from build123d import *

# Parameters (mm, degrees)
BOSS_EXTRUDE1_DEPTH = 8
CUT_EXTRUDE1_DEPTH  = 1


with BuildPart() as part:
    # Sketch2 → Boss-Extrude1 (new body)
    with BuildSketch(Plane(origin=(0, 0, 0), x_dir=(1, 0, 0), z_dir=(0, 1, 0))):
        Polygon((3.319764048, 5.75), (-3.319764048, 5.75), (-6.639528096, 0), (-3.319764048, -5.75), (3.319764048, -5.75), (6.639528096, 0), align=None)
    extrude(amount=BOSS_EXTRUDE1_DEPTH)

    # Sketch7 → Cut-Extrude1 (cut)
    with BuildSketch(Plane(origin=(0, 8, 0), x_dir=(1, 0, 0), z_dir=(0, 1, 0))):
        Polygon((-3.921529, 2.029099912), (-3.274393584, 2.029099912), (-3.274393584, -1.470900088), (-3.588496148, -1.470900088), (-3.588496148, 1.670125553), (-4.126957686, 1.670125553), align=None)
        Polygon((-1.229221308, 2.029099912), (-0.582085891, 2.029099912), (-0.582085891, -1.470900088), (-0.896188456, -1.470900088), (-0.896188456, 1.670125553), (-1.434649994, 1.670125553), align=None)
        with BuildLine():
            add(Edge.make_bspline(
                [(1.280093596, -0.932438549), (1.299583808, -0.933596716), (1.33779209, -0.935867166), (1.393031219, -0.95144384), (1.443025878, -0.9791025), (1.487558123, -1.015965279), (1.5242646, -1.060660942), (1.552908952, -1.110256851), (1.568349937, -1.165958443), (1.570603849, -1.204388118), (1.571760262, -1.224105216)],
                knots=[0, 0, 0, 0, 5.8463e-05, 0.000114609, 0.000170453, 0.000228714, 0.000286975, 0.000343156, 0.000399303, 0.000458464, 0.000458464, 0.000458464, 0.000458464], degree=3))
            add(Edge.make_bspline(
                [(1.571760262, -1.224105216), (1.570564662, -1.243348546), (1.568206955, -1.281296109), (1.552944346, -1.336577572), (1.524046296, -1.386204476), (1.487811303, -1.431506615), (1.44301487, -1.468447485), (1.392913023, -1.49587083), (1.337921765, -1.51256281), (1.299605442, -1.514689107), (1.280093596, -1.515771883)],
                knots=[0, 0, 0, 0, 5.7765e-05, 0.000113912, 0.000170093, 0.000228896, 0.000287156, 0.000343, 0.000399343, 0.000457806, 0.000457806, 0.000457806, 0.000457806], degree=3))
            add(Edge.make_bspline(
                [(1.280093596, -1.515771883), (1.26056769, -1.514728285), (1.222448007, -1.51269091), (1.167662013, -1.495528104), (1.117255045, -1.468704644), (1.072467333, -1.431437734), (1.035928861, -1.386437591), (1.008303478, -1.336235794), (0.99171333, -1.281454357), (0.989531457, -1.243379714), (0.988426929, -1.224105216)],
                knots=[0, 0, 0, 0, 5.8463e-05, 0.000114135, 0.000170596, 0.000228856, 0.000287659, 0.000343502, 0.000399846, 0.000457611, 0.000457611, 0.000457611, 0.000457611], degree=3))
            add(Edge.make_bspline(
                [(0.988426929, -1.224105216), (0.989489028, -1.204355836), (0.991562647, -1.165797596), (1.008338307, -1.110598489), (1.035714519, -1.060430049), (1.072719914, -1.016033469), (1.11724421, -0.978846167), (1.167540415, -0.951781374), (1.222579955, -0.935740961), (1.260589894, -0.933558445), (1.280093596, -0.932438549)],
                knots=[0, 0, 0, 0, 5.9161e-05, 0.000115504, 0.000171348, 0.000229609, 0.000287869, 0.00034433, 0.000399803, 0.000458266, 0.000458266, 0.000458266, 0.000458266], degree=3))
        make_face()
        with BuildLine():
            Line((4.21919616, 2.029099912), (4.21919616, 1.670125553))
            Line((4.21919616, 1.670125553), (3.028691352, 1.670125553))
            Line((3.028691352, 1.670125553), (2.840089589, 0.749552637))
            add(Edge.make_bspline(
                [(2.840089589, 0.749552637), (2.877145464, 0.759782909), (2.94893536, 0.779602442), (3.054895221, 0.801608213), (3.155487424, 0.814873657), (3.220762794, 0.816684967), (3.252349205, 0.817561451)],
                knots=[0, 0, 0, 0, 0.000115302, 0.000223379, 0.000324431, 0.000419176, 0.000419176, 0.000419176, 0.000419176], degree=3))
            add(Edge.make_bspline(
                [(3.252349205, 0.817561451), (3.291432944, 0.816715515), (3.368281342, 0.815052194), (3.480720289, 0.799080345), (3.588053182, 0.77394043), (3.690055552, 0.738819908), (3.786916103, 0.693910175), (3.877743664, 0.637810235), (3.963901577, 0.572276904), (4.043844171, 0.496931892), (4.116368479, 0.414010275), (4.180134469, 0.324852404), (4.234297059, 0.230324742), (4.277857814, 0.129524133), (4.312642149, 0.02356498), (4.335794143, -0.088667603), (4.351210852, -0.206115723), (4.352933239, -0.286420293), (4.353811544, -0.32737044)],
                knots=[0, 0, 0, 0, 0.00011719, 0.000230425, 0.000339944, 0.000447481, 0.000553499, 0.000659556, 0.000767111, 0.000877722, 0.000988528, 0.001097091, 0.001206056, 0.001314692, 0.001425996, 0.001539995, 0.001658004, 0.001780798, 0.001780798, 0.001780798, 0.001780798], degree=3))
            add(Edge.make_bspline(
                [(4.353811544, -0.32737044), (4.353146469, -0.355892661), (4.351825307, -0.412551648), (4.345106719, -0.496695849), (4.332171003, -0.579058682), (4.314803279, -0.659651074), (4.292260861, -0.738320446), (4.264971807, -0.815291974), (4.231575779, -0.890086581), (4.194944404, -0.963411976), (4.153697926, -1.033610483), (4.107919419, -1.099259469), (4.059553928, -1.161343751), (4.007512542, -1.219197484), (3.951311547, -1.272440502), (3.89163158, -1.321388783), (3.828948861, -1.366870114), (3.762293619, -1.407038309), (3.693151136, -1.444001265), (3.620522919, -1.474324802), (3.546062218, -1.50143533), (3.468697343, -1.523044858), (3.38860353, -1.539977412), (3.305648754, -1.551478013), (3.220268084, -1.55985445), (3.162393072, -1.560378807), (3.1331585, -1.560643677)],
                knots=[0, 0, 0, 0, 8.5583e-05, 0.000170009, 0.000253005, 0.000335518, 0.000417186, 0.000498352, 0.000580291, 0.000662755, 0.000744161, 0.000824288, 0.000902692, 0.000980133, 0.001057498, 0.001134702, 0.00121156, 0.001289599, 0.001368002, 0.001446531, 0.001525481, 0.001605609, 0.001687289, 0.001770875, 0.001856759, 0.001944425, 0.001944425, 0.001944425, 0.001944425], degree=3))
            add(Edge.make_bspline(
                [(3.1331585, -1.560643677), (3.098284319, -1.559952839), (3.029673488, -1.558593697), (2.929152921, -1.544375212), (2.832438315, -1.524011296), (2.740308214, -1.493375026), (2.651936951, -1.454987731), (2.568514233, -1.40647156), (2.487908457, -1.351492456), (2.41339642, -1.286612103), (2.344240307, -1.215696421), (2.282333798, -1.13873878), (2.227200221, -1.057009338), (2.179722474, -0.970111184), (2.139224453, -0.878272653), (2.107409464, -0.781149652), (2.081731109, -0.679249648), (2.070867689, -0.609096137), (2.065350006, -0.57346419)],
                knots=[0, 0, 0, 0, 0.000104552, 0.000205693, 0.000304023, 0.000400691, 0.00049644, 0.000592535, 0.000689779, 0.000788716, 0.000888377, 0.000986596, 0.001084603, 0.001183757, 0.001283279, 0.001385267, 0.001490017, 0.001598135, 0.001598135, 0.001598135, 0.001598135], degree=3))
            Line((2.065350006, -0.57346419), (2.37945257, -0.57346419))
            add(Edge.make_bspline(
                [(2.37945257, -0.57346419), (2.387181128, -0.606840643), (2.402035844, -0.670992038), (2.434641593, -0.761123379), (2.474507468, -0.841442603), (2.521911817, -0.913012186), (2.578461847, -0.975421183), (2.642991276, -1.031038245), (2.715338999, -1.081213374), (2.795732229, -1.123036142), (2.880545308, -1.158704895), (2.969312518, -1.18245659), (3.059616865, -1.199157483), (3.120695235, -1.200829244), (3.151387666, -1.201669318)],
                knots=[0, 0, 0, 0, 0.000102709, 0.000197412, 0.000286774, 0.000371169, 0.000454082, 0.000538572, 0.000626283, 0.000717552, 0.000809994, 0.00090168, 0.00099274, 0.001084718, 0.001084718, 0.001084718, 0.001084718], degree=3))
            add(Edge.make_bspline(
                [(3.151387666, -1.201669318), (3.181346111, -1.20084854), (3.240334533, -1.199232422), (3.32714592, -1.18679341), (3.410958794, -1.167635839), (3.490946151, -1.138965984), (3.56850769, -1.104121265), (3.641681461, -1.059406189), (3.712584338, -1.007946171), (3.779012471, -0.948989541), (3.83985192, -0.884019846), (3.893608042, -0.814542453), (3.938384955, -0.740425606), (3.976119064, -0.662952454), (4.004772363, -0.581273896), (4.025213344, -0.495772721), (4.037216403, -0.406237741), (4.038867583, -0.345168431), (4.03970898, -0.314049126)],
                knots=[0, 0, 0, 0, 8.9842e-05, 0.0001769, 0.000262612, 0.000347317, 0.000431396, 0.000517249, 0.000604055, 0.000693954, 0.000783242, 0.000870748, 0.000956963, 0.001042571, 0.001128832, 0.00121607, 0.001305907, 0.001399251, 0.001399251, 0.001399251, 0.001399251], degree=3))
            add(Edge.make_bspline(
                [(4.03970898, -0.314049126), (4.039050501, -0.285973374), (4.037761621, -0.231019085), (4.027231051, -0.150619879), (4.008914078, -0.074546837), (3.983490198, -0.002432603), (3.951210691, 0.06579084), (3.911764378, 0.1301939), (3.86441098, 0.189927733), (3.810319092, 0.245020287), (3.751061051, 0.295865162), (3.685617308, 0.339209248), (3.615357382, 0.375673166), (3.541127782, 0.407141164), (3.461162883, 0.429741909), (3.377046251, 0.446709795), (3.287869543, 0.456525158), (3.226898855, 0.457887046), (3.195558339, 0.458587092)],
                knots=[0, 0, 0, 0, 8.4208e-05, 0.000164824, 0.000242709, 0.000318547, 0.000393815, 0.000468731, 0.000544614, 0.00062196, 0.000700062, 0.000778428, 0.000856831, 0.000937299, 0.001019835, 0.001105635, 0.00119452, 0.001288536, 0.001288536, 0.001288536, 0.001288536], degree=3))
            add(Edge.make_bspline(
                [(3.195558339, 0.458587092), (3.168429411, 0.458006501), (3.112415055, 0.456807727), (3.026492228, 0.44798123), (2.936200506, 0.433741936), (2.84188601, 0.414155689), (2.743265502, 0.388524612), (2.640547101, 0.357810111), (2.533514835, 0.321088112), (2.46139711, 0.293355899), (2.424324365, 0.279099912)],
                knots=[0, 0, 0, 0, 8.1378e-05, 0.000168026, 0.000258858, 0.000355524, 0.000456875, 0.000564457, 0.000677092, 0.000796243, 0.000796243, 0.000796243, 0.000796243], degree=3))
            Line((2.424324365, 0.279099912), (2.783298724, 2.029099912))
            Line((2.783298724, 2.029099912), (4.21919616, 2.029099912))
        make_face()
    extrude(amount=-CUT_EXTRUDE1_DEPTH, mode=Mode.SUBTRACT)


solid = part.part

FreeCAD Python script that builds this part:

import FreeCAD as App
import Part
import Sketcher

V = App.Vector
Q = App.Units.Quantity


def add_polygon(sketch, points):
    """Adds a closed chain of lines whose ends are joined by coincident constraints."""
    first, n = sketch.GeometryCount, len(points)
    for a, b in zip(points, points[1:] + points[:1]):
        sketch.addGeometry(Part.LineSegment(App.Vector(*a, 0), App.Vector(*b, 0)), False)
    for i in range(n):
        sketch.addConstraint(Sketcher.Constraint("Coincident", first + i, 2, first + (i + 1) % n, 1))

doc = App.newDocument("Part")
body = doc.addObject("PartDesign::Body", "Body")

# Sketch on XZ plane
sketch1 = body.newObject("Sketcher::SketchObject", "Sketch")
sketch1.AttachmentSupport = (doc.getObject("XZ_Plane"), [""])
sketch1.MapMode = "FlatFace"
add_polygon(sketch1, [(3, -6), (-3, -6), (-7, 0), (-3, 6), (3, 6), (7, 0)])  # lines 0-5
sketch1.addConstraint([
    Sketcher.Constraint("Horizontal", 0),
    Sketcher.Constraint("Horizontal", 3),
    Sketcher.Constraint("Symmetric", 0, 2, 3, 2, -1, 1),
    Sketcher.Constraint("Symmetric", 1, 2, 4, 2, -1, 1),
    Sketcher.Constraint("PointOnObject", 1, 2, -1),
    Sketcher.Constraint("Parallel", 2, 5),
    Sketcher.Constraint("Vertical", 0, 2, 2, 2),
    Sketcher.Constraint("Angle", 1, Q("120 deg")),
    Sketcher.Constraint("DistanceY", 0, 2, 2, 2, Q("11.5 mm")),
    Sketcher.Constraint("DistanceX", 0, 2, 0, 1, Q("6.639528 mm")),
])
pad1 = body.newObject("PartDesign::Pad", "Pad")
pad1.Profile = sketch1
pad1.Length = 8
pad1.Reversed = True

# Sketch on XZ plane
sketch2 = body.newObject("Sketcher::SketchObject", "Sketch001")
sketch2.AttachmentSupport = (doc.getObject("XZ_Plane"), [""])
sketch2.MapMode = "FlatFace"
sketch2.AttachmentOffset = App.Placement(V(0, 0, -8), App.Rotation())
add_polygon(sketch2, [(-3.274394, -2.0291), (-3.921529, -2.0291), (-4.126958, -1.670126), (-3.588496, -1.670126), (-3.588496, 1.4709), (-3.274394, 1.4709)])  # lines 0-5
add_polygon(sketch2, [(-0.582086, -2.0291), (-1.229221, -2.0291), (-1.43465, -1.670126), (-0.896188, -1.670126), (-0.896188, 1.4709), (-0.582086, 1.4709)])  # lines 6-11
sketch2.addGeometry(Part.BSplineCurve([V(1.280094, 0.932439, 0), V(1.299584, 0.933597, 0), V(1.337792, 0.935867, 0), V(1.393031, 0.951444, 0), V(1.443026, 0.979102, 0), V(1.487558, 1.015965, 0), V(1.524265, 1.060661, 0), V(1.552909, 1.110257, 0), V(1.56835, 1.165958, 0), V(1.570604, 1.204388, 0), V(1.57176, 1.224105, 0)], [4, 1, 1, 1, 1, 1, 1, 1, 4], [0, 0.000058463, 0.000114609, 0.000170453, 0.000228714, 0.000286975, 0.000343156, 0.000399303, 0.000458464], False, 3, [1, 1, 1, 1, 1, 1, 1, 1, 1, 1, 1], False), False)  # 12
sketch2.addGeometry(Part.BSplineCurve([V(0.988427, 1.224105, 0), V(0.989489, 1.204356, 0), V(0.991563, 1.165798, 0), V(1.008338, 1.110598, 0), V(1.035715, 1.06043, 0), V(1.07272, 1.016033, 0), V(1.117244, 0.978846, 0), V(1.16754, 0.951781, 0), V(1.22258, 0.935741, 0), V(1.26059, 0.933558, 0), V(1.280094, 0.932439, 0)], [4, 1, 1, 1, 1, 1, 1, 1, 4], [0, 0.000059161, 0.000115504, 0.000171348, 0.000229609, 0.000287869, 0.00034433, 0.000399803, 0.000458266], False, 3, [1, 1, 1, 1, 1, 1, 1, 1, 1, 1, 1], False), False)  # 13
sketch2.addGeometry(Part.BSplineCurve([V(1.280094, 1.515772, 0), V(1.260568, 1.514728, 0), V(1.222448, 1.512691, 0), V(1.167662, 1.495528, 0), V(1.117255, 1.468705, 0), V(1.072467, 1.431438, 0), V(1.035929, 1.386438, 0), V(1.008303, 1.336236, 0), V(0.991713, 1.281454, 0), V(0.989531, 1.24338, 0), V(0.988427, 1.224105, 0)], [4, 1, 1, 1, 1, 1, 1, 1, 4], [0, 0.000058463, 0.000114135, 0.000170596, 0.000228856, 0.000287659, 0.000343502, 0.000399846, 0.000457611], False, 3, [1, 1, 1, 1, 1, 1, 1, 1, 1, 1, 1], False), False)  # 14
sketch2.addGeometry(Part.BSplineCurve([V(1.57176, 1.224105, 0), V(1.570565, 1.243349, 0), V(1.568207, 1.281296, 0), V(1.552944, 1.336578, 0), V(1.524046, 1.386204, 0), V(1.487811, 1.431507, 0), V(1.443015, 1.468447, 0), V(1.392913, 1.495871, 0), V(1.337922, 1.512563, 0), V(1.299605, 1.514689, 0), V(1.280094, 1.515772, 0)], [4, 1, 1, 1, 1, 1, 1, 1, 4], [0, 0.000057765, 0.000113912, 0.000170093, 0.000228896, 0.000287156, 0.000343, 0.000399343, 0.000457806], False, 3, [1, 1, 1, 1, 1, 1, 1, 1, 1, 1, 1], False), False)  # 15
sketch2.addGeometry(Part.LineSegment(V(4.219196, -1.670126, 0), V(4.219196, -2.0291, 0)), False)  # 16
sketch2.addGeometry(Part.LineSegment(V(4.219196, -2.0291, 0), V(2.783299, -2.0291, 0)), False)  # 17
sketch2.addGeometry(Part.LineSegment(V(2.783299, -2.0291, 0), V(2.424324, -0.2791, 0)), False)  # 18
sketch2.addGeometry(Part.BSplineCurve([V(3.195558, -0.458587, 0), V(3.168429, -0.458007, 0), V(3.112415, -0.456808, 0), V(3.026492, -0.447981, 0), V(2.936201, -0.433742, 0), V(2.841886, -0.414156, 0), V(2.743266, -0.388525, 0), V(2.640547, -0.35781, 0), V(2.533515, -0.321088, 0), V(2.461397, -0.293356, 0), V(2.424324, -0.2791, 0)], [4, 1, 1, 1, 1, 1, 1, 1, 4], [0, 0.000081378, 0.000168026, 0.000258858, 0.000355524, 0.000456875, 0.000564457, 0.000677092, 0.000796243], False, 3, [1, 1, 1, 1, 1, 1, 1, 1, 1, 1, 1], False), False)  # 19
sketch2.addGeometry(Part.BSplineCurve([V(4.039709, 0.314049, 0), V(4.039051, 0.285973, 0), V(4.037762, 0.231019, 0), V(4.027231, 0.15062, 0), V(4.008914, 0.074547, 0), V(3.98349, 0.002433, 0), V(3.951211, -0.065791, 0), V(3.911764, -0.130194, 0), V(3.864411, -0.189928, 0), V(3.810319, -0.24502, 0), V(3.751061, -0.295865, 0), V(3.685617, -0.339209, 0), V(3.615357, -0.375673, 0), V(3.541128, -0.407141, 0), V(3.461163, -0.429742, 0), V(3.377046, -0.44671, 0), V(3.28787, -0.456525, 0), V(3.226899, -0.457887, 0), V(3.195558, -0.458587, 0)], [4, 1, 1, 1, 1, 1, 1, 1, 1, 1, 1, 1, 1, 1, 1, 1, 4], [0, 0.000084208, 0.000164824, 0.000242709, 0.000318547, 0.000393815, 0.000468731, 0.000544614, 0.00062196, 0.000700062, 0.000778428, 0.000856831, 0.000937299, 0.001019835, 0.001105635, 0.00119452, 0.001288536], False, 3, [1, 1, 1, 1, 1, 1, 1, 1, 1, 1, 1, 1, 1, 1, 1, 1, 1, 1, 1], False), False)  # 20
sketch2.addGeometry(Part.BSplineCurve([V(3.151388, 1.201669, 0), V(3.181346, 1.200849, 0), V(3.240335, 1.199232, 0), V(3.327146, 1.186793, 0), V(3.410959, 1.167636, 0), V(3.490946, 1.138966, 0), V(3.568508, 1.104121, 0), V(3.641681, 1.059406, 0), V(3.712584, 1.007946, 0), V(3.779012, 0.94899, 0), V(3.839852, 0.88402, 0), V(3.893608, 0.814542, 0), V(3.938385, 0.740426, 0), V(3.976119, 0.662952, 0), V(4.004772, 0.581274, 0), V(4.025213, 0.495773, 0), V(4.037216, 0.406238, 0), V(4.038868, 0.345168, 0), V(4.039709, 0.314049, 0)], [4, 1, 1, 1, 1, 1, 1, 1, 1, 1, 1, 1, 1, 1, 1, 1, 4], [0, 0.000089842, 0.0001769, 0.000262612, 0.000347317, 0.000431396, 0.000517249, 0.000604055, 0.000693954, 0.000783242, 0.000870748, 0.000956963, 0.001042571, 0.001128832, 0.00121607, 0.001305907, 0.001399251], False, 3, [1, 1, 1, 1, 1, 1, 1, 1, 1, 1, 1, 1, 1, 1, 1, 1, 1, 1, 1], False), False)  # 21
sketch2.addGeometry(Part.BSplineCurve([V(2.379453, 0.573464, 0), V(2.387181, 0.606841, 0), V(2.402036, 0.670992, 0), V(2.434642, 0.761123, 0), V(2.474507, 0.841443, 0), V(2.521912, 0.913012, 0), V(2.578462, 0.975421, 0), V(2.642991, 1.031038, 0), V(2.715339, 1.081213, 0), V(2.795732, 1.123036, 0), V(2.880545, 1.158705, 0), V(2.969313, 1.182457, 0), V(3.059617, 1.199157, 0), V(3.120695, 1.200829, 0), V(3.151388, 1.201669, 0)], [4, 1, 1, 1, 1, 1, 1, 1, 1, 1, 1, 1, 4], [0, 0.000102709, 0.000197412, 0.000286774, 0.000371169, 0.000454082, 0.000538572, 0.000626283, 0.000717552, 0.000809994, 0.00090168, 0.00099274, 0.001084718], False, 3, [1, 1, 1, 1, 1, 1, 1, 1, 1, 1, 1, 1, 1, 1, 1], False), False)  # 22
sketch2.addGeometry(Part.LineSegment(V(2.379453, 0.573464, 0), V(2.06535, 0.573464, 0)), False)  # 23
sketch2.addGeometry(Part.BSplineCurve([V(3.133158, 1.560644, 0), V(3.098284, 1.559953, 0), V(3.029673, 1.558594, 0), V(2.929153, 1.544375, 0), V(2.832438, 1.524011, 0), V(2.740308, 1.493375, 0), V(2.651937, 1.454988, 0), V(2.568514, 1.406472, 0), V(2.487908, 1.351492, 0), V(2.413396, 1.286612, 0), V(2.34424, 1.215696, 0), V(2.282334, 1.138739, 0), V(2.2272, 1.057009, 0), V(2.179722, 0.970111, 0), V(2.139224, 0.878273, 0), V(2.107409, 0.78115, 0), V(2.081731, 0.67925, 0), V(2.070868, 0.609096, 0), V(2.06535, 0.573464, 0)], [4, 1, 1, 1, 1, 1, 1, 1, 1, 1, 1, 1, 1, 1, 1, 1, 4], [0, 0.000104552, 0.000205693, 0.000304023, 0.000400691, 0.00049644, 0.000592535, 0.000689779, 0.000788716, 0.000888377, 0.000986596, 0.001084603, 0.001183757, 0.001283279, 0.001385267, 0.001490017, 0.001598135], False, 3, [1, 1, 1, 1, 1, 1, 1, 1, 1, 1, 1, 1, 1, 1, 1, 1, 1, 1, 1], False), False)  # 24
sketch2.addGeometry(Part.BSplineCurve([V(4.353812, 0.32737, 0), V(4.353146, 0.355893, 0), V(4.351825, 0.412552, 0), V(4.345107, 0.496696, 0), V(4.332171, 0.579059, 0), V(4.314803, 0.659651, 0), V(4.292261, 0.73832, 0), V(4.264972, 0.815292, 0), V(4.231576, 0.890087, 0), V(4.194944, 0.963412, 0), V(4.153698, 1.03361, 0), V(4.107919, 1.099259, 0), V(4.059554, 1.161344, 0), V(4.007513, 1.219197, 0), V(3.951312, 1.272441, 0), V(3.891632, 1.321389, 0), V(3.828949, 1.36687, 0), V(3.762294, 1.407038, 0), V(3.693151, 1.444001, 0), V(3.620523, 1.474325, 0), V(3.546062, 1.501435, 0), V(3.468697, 1.523045, 0), V(3.388604, 1.539977, 0), V(3.305649, 1.551478, 0), V(3.220268, 1.559854, 0), V(3.162393, 1.560379, 0), V(3.133158, 1.560644, 0)], [4, 1, 1, 1, 1, 1, 1, 1, 1, 1, 1, 1, 1, 1, 1, 1, 1, 1, 1, 1, 1, 1, 1, 1, 4], [0, 0.000085583, 0.000170009, 0.000253005, 0.000335518, 0.000417186, 0.000498352, 0.000580291, 0.000662755, 0.000744161, 0.000824288, 0.000902692, 0.000980133, 0.001057498, 0.001134702, 0.00121156, 0.001289599, 0.001368002, 0.001446531, 0.001525481, 0.001605609, 0.001687289, 0.001770875, 0.001856759, 0.001944425], False, 3, [1, 1, 1, 1, 1, 1, 1, 1, 1, 1, 1, 1, 1, 1, 1, 1, 1, 1, 1, 1, 1, 1, 1, 1, 1, 1, 1], False), False)  # 25
sketch2.addGeometry(Part.BSplineCurve([V(3.252349, -0.817561, 0), V(3.291433, -0.816716, 0), V(3.368281, -0.815052, 0), V(3.48072, -0.79908, 0), V(3.588053, -0.77394, 0), V(3.690056, -0.73882, 0), V(3.786916, -0.69391, 0), V(3.877744, -0.63781, 0), V(3.963902, -0.572277, 0), V(4.043844, -0.496932, 0), V(4.116368, -0.41401, 0), V(4.180134, -0.324852, 0), V(4.234297, -0.230325, 0), V(4.277858, -0.129524, 0), V(4.312642, -0.023565, 0), V(4.335794, 0.088668, 0), V(4.351211, 0.206116, 0), V(4.352933, 0.28642, 0), V(4.353812, 0.32737, 0)], [4, 1, 1, 1, 1, 1, 1, 1, 1, 1, 1, 1, 1, 1, 1, 1, 4], [0, 0.00011719, 0.000230425, 0.000339944, 0.000447481, 0.000553499, 0.000659556, 0.000767111, 0.000877722, 0.000988528, 0.001097091, 0.001206056, 0.001314692, 0.001425996, 0.001539995, 0.001658004, 0.001780798], False, 3, [1, 1, 1, 1, 1, 1, 1, 1, 1, 1, 1, 1, 1, 1, 1, 1, 1, 1, 1], False), False)  # 26
sketch2.addGeometry(Part.BSplineCurve([V(2.84009, -0.749553, 0), V(2.877145, -0.759783, 0), V(2.948935, -0.779602, 0), V(3.054895, -0.801608, 0), V(3.155487, -0.814874, 0), V(3.220763, -0.816685, 0), V(3.252349, -0.817561, 0)], [4, 1, 1, 1, 4], [0, 0.000115302, 0.000223379, 0.000324431, 0.000419176], False, 3, [1, 1, 1, 1, 1, 1, 1], False), False)  # 27
sketch2.addGeometry(Part.LineSegment(V(2.84009, -0.749553, 0), V(3.028691, -1.670126, 0)), False)  # 28
sketch2.addGeometry(Part.LineSegment(V(3.028691, -1.670126, 0), V(4.219196, -1.670126, 0)), False)  # 29
sketch2.addConstraint([
    Sketcher.Constraint("Block", 12),
    Sketcher.Constraint("Block", 13),
    Sketcher.Constraint("Block", 14),
    Sketcher.Constraint("Block", 15),
    Sketcher.Constraint("Block", 19),
    Sketcher.Constraint("Block", 20),
    Sketcher.Constraint("Block", 21),
    Sketcher.Constraint("Block", 22),
    Sketcher.Constraint("Block", 24),
    Sketcher.Constraint("Block", 25),
    Sketcher.Constraint("Block", 26),
    Sketcher.Constraint("Block", 27),
    Sketcher.Constraint("Coincident", 16, 2, 17, 1),
    Sketcher.Constraint("Coincident", 17, 2, 18, 1),
    Sketcher.Constraint("Coincident", 18, 2, 19, 2),
    Sketcher.Constraint("Coincident", 22, 1, 23, 1),
    Sketcher.Constraint("Coincident", 23, 2, 24, 2),
    Sketcher.Constraint("Coincident", 27, 1, 28, 1),
    Sketcher.Constraint("Coincident", 28, 2, 29, 1),
    Sketcher.Constraint("Coincident", 29, 2, 16, 1),
    Sketcher.Constraint("Horizontal", 0),
    Sketcher.Constraint("Horizontal", 2),
    Sketcher.Constraint("Vertical", 3),
    Sketcher.Constraint("Horizontal", 4),
    Sketcher.Constraint("Vertical", 5),
    Sketcher.Constraint("Horizontal", 6),
    Sketcher.Constraint("Horizontal", 8),
    Sketcher.Constraint("Vertical", 9),
    Sketcher.Constraint("Horizontal", 10),
    Sketcher.Constraint("Vertical", 11),
    Sketcher.Constraint("Vertical", 16),
    Sketcher.Constraint("Horizontal", 17),
    Sketcher.Constraint("Horizontal", 29),
    Sketcher.Constraint("DistanceY", 5, 2, 5, 1, Q("3.5 mm")),
    Sketcher.Constraint("DistanceY", 11, 2, 11, 1, Q("3.5 mm")),
    Sketcher.Constraint("DistanceY", 6, 2, 4, 2, Q("3.5 mm")),
    Sketcher.Constraint("DistanceY", 16, 2, 10, 2, Q("3.5 mm")),
    Sketcher.Constraint("DistanceY", 17, 2, 18, 2, Q("1.75 mm")),
    Sketcher.Constraint("Distance", 1, Q("0.413598 mm")),
    Sketcher.Constraint("Distance", 7, Q("0.413598 mm")),
    Sketcher.Constraint("DistanceX", 2, 1, 2, 2, Q("0.538462 mm")),
    Sketcher.Constraint("DistanceX", 8, 1, 8, 2, Q("0.538462 mm")),
    Sketcher.Constraint("DistanceX", -1, 1, 17, 2, Q("2.783299 mm")),
    Sketcher.Constraint("DistanceX", 0, 2, 0, 1, Q("0.647135 mm")),
    Sketcher.Constraint("DistanceX", 4, 1, 4, 2, Q("0.314103 mm")),
    Sketcher.Constraint("DistanceX", 6, 2, 6, 1, Q("0.647135 mm")),
    Sketcher.Constraint("DistanceX", 10, 1, 10, 2, Q("0.314103 mm")),
    Sketcher.Constraint("DistanceX", 17, 2, 17, 1, Q("1.435897 mm")),
    Sketcher.Constraint("DistanceX", 29, 1, 29, 2, Q("1.190505 mm")),
    Sketcher.Constraint("DistanceY", 16, 2, 16, 1, Q("0.358974 mm")),
    Sketcher.Constraint("DistanceX", 0, 2, -1, 1, Q("3.921529 mm")),
    Sketcher.Constraint("DistanceX", 6, 2, -1, 1, Q("1.229221 mm")),
])
pocket1 = body.newObject("PartDesign::Pocket", "Pocket")
pocket1.Profile = sketch2
pocket1.Length = 1
pocket1.Reversed = True

doc.recompute()
